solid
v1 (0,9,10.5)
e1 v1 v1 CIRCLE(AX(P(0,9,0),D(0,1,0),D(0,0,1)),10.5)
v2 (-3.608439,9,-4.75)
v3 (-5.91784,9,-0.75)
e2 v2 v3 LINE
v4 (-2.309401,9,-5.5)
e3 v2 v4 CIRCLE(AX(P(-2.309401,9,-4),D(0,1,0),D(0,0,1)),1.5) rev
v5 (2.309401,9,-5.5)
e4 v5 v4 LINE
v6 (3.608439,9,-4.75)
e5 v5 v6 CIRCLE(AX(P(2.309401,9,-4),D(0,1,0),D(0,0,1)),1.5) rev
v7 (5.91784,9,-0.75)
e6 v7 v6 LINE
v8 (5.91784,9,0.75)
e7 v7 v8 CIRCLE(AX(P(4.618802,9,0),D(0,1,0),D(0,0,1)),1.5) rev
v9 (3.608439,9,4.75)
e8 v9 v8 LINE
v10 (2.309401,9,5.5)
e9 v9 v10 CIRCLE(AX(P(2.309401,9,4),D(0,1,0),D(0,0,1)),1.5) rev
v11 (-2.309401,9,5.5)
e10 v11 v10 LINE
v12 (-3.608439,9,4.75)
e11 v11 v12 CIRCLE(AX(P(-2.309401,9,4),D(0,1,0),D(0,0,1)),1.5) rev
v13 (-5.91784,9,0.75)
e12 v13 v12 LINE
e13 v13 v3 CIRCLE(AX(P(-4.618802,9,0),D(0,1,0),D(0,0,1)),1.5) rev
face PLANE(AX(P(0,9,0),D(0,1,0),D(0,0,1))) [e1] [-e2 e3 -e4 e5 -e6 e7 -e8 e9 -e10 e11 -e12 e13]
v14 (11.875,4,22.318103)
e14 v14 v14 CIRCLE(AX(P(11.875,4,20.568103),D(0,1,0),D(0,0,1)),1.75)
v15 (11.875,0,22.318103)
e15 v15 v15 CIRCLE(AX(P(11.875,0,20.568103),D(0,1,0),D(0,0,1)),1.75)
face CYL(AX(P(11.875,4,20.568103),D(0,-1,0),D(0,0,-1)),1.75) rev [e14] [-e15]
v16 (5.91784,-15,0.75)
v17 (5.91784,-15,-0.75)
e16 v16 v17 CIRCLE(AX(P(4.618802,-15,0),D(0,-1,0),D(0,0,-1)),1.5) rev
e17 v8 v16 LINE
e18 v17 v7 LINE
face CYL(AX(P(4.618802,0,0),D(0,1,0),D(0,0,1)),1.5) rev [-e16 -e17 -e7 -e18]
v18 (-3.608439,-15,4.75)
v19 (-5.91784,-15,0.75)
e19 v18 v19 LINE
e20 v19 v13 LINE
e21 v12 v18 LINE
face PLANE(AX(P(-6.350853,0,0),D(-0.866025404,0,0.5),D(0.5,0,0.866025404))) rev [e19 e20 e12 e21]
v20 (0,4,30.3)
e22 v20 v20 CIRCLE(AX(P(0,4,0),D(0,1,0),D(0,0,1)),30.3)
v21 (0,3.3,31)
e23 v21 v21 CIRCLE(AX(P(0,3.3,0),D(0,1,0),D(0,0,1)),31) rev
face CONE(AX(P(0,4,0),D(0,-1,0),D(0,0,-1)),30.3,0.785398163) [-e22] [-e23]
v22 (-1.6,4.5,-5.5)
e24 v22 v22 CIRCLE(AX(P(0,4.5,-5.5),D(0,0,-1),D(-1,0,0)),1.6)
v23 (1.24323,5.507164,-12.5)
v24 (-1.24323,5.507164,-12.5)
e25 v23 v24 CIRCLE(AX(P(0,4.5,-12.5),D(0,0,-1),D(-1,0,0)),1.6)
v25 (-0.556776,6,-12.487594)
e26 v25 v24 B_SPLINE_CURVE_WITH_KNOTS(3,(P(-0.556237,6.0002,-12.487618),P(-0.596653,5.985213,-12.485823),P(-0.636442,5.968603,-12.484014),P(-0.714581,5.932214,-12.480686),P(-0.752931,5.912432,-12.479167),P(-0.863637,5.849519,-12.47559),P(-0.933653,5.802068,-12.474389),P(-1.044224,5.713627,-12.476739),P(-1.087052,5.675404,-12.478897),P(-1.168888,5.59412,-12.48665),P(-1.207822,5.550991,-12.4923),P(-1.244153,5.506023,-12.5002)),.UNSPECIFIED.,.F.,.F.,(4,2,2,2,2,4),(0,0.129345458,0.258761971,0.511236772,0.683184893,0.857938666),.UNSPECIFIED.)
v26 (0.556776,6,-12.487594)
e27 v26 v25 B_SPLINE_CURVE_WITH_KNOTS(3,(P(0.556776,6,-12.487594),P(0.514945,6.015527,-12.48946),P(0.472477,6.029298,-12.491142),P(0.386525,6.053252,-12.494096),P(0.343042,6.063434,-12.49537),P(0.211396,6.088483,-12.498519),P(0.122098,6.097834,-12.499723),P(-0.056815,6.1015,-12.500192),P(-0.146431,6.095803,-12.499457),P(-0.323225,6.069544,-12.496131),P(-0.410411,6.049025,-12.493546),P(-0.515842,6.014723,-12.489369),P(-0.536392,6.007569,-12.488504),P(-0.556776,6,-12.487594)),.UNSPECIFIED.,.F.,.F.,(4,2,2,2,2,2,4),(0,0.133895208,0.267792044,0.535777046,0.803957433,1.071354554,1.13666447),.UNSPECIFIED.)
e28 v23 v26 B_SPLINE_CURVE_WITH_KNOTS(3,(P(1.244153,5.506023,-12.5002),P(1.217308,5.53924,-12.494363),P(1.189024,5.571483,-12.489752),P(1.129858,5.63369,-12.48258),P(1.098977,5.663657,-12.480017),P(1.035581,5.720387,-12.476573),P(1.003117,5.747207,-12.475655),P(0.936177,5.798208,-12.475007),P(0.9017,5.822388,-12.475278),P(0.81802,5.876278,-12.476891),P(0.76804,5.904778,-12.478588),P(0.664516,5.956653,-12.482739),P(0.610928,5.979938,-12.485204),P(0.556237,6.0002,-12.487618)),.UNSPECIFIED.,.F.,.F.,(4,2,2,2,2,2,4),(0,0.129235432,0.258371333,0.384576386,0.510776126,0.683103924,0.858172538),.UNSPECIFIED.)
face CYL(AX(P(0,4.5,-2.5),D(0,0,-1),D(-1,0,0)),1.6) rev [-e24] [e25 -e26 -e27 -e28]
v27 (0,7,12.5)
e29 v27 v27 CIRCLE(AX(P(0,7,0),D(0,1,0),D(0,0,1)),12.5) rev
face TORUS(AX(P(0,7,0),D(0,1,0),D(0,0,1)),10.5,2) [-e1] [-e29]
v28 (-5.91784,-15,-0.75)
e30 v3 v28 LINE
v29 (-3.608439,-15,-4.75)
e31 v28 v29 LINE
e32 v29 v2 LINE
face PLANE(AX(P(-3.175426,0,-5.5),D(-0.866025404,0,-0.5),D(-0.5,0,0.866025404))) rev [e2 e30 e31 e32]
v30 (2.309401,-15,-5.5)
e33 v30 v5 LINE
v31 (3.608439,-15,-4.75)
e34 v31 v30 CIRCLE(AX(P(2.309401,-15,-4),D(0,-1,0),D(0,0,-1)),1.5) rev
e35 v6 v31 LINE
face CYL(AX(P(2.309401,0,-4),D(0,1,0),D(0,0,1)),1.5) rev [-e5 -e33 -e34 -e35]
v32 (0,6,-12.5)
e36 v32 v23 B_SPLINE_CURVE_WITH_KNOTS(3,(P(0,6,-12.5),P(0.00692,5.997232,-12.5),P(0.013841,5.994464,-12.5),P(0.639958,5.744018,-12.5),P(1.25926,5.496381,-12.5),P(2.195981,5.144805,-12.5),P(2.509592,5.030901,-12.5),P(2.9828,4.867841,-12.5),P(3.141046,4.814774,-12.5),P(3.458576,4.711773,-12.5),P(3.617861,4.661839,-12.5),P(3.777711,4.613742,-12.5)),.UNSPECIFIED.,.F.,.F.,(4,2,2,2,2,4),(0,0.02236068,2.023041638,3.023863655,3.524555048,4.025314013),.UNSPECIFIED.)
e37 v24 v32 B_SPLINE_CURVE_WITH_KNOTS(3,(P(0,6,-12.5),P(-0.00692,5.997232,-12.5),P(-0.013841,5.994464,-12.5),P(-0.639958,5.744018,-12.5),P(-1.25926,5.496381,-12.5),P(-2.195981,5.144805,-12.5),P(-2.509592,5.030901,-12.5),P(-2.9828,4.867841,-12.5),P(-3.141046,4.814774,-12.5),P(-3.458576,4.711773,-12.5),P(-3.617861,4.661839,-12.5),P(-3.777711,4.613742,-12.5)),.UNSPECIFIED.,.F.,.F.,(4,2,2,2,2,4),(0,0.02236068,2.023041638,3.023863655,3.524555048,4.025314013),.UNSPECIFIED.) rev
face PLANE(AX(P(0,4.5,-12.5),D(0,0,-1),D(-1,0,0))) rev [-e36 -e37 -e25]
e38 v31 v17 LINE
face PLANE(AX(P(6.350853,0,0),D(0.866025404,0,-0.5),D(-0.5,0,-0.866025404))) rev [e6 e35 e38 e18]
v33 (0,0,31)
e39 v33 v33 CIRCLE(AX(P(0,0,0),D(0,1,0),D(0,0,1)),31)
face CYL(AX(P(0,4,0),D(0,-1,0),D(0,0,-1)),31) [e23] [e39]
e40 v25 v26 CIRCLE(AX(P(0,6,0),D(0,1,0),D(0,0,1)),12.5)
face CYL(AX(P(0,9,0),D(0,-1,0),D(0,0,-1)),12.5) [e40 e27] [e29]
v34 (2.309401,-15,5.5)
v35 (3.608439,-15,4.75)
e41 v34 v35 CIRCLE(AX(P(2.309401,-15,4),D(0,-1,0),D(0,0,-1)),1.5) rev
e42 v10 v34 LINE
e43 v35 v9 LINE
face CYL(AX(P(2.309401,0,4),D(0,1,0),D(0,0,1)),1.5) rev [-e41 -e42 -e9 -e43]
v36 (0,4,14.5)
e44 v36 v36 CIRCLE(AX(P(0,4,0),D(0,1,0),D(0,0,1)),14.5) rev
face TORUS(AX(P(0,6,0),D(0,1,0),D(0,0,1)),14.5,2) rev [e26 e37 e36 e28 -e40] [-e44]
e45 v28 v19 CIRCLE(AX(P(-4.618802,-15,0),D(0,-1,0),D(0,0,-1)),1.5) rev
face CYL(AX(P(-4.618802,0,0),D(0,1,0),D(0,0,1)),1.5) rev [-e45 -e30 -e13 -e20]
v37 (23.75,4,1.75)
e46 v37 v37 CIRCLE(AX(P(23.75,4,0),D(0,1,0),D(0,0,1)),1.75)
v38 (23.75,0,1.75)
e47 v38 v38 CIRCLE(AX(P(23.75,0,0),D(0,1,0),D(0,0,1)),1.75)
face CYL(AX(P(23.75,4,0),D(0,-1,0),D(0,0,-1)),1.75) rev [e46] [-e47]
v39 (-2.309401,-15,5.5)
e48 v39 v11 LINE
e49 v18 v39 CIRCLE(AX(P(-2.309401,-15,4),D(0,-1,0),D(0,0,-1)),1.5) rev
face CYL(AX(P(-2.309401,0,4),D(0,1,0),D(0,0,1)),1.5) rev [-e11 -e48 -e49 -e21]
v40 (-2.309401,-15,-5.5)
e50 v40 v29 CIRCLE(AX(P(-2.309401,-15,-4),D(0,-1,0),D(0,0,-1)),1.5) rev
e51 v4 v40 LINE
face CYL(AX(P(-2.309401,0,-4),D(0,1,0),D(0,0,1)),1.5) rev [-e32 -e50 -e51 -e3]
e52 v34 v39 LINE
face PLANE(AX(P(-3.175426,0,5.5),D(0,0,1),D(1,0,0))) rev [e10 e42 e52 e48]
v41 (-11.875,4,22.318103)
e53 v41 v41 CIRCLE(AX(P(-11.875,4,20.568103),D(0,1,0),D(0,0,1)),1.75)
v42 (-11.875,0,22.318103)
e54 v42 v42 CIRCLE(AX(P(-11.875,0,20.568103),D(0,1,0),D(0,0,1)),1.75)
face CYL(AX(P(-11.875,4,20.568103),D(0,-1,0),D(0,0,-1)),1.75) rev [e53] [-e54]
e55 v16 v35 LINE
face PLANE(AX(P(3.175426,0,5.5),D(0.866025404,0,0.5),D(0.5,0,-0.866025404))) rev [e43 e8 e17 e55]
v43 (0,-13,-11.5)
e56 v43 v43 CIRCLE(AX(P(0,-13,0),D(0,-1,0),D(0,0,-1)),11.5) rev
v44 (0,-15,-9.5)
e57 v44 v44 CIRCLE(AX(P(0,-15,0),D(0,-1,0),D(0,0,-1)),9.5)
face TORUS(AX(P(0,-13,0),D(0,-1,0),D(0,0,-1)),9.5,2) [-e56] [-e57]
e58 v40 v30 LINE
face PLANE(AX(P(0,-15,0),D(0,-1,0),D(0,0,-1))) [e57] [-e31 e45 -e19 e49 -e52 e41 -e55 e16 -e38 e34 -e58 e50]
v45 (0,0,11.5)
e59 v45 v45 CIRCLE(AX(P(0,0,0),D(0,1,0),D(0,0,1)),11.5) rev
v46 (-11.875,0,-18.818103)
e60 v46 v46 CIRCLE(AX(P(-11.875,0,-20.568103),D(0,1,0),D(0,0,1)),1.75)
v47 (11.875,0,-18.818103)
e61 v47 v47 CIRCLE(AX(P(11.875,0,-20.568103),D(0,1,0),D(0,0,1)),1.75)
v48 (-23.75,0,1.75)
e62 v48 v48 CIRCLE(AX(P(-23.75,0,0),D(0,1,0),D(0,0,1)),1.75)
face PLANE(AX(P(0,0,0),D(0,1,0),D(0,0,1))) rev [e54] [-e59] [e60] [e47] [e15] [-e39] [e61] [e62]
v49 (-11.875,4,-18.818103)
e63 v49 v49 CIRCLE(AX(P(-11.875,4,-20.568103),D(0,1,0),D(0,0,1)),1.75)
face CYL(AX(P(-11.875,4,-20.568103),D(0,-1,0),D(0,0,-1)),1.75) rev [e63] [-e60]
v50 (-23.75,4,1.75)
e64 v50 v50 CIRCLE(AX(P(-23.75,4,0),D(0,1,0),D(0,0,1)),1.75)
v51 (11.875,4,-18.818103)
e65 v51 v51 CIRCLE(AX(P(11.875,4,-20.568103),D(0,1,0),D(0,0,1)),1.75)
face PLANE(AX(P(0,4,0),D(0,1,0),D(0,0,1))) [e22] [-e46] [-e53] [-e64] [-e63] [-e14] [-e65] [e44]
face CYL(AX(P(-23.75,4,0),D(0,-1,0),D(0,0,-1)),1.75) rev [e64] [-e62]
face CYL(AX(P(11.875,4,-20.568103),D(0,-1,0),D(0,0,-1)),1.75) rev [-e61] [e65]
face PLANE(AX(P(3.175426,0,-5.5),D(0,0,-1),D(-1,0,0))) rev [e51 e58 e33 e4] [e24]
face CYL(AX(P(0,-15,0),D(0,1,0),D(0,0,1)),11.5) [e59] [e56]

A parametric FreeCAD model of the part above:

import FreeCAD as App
import Part
import Sketcher
Q = App.Units.Quantity


def edges_at(feature, points):
    """Names of the edges that pass closest to the given points."""
    edges = feature.Shape.Edges
    near = lambda p: min(range(len(edges)), key=lambda i: edges[i].distToShape(Part.Vertex(*p))[0])
    return sorted({f"Edge{near(p) + 1}" for p in points})

doc = App.newDocument("Part")
params = doc.addObject("Spreadsheet::Sheet", "Params")
for row, (alias, value) in enumerate([
    ("sketch1_diameter", "62 mm"),
    ("sketch1_diameter2", "3.5 mm"),
    ("pad1_length", "4 mm"),
    ("sketch2_diameter", "25 mm"),
    ("pad2_length", "5 mm"),
    ("fillet_radius", "2 mm"),
    ("fillet2_radius", "2 mm"),
    ("sketch4_diameter", "3.2 mm"),
    ("pocket2_length", "10 mm"),
    ("chamfer_size", "0.7 mm"),
    ("sketch5_diameter", "23 mm"),
    ("pad3_length", "15 mm"),
    ("fillet3_radius", "2 mm"),
    ("fillet4_radius", "1.5 mm"),
], start=1):
    params.set(f"A{row}", alias)
    params.set(f"B{row}", "=" + value)
    params.setAlias(f"B{row}", alias)

body = doc.addObject("PartDesign::Body", "Body")

# Sketch on XZ plane
sketch1 = body.newObject("Sketcher::SketchObject", "Sketch")
sketch1.AttachmentSupport = (doc.getObject("XZ_Plane"), [""])
sketch1.MapMode = "FlatFace"
sketch1.addGeometry([
    Part.Circle(App.Vector(0, 0, 0), App.Vector(0, 0, 1), 31),  # 0
    Part.Circle(App.Vector(-11.875, -20.568103, 0), App.Vector(0, 0, 1), 1.75),  # 1
    Part.Circle(App.Vector(-23.75, 0, 0), App.Vector(0, 0, 1), 1.75),  # 2
    Part.Circle(App.Vector(-11.875, 20.568103, 0), App.Vector(0, 0, 1), 1.75),  # 3
    Part.Circle(App.Vector(11.875, -20.568103, 0), App.Vector(0, 0, 1), 1.75),  # 4
    Part.Circle(App.Vector(23.75, 0, 0), App.Vector(0, 0, 1), 1.75),  # 5
    Part.Circle(App.Vector(11.875, 20.568103, 0), App.Vector(0, 0, 1), 1.75),  # 6
], False)
sketch1.addConstraint([
    Sketcher.Constraint("Coincident", 0, 3, -1, 1),
    Sketcher.Constraint("Equal", 1, 2),
    Sketcher.Constraint("Equal", 2, 3),
    Sketcher.Constraint("Equal", 3, 4),
    Sketcher.Constraint("Equal", 4, 5),
    Sketcher.Constraint("Equal", 5, 6),
    Sketcher.Constraint("Symmetric", 3, 3, 4, 3, -1, 1),
    Sketcher.Constraint("Symmetric", 2, 3, 5, 3, -1, 1),
    Sketcher.Constraint("Symmetric", 1, 3, 6, 3, -1, 1),
    Sketcher.Constraint("Symmetric", 1, 3, 4, 3, -2),
    Sketcher.Constraint("PointOnObject", 2, 3, -1),
    Sketcher.Constraint("Diameter", 0, Q("62 mm")),
    Sketcher.Constraint("Diameter", 1, Q("3.5 mm")),
    Sketcher.Constraint("DistanceX", 2, 3, 5, 3, Q("47.5 mm")),
    Sketcher.Constraint("DistanceX", 1, 3, 4, 3, Q("23.75 mm")),
    Sketcher.Constraint("DistanceY", 1, 3, -1, 1, Q("20.568103 mm")),
])
sketch1.setExpression("Constraints[11]", "Params.sketch1_diameter")
sketch1.setExpression("Constraints[12]", "Params.sketch1_diameter2")
pad1 = body.newObject("PartDesign::Pad", "Pad")
pad1.Profile = sketch1
pad1.setExpression("Length", "Params.pad1_length")
pad1.Reversed = True

# Sketch on XZ plane
sketch2 = body.newObject("Sketcher::SketchObject", "Sketch001")
sketch2.AttachmentSupport = (doc.getObject("XZ_Plane"), [""])
sketch2.MapMode = "FlatFace"
sketch2.AttachmentOffset = App.Placement(App.Vector(0, 0, -4), App.Rotation())
sketch2.addGeometry(Part.Circle(App.Vector(0, 0, 0), App.Vector(0, 0, 1), 12.5), False)
sketch2.addConstraint([
    Sketcher.Constraint("Coincident", 0, 3, -1, 1),
    Sketcher.Constraint("Diameter", 0, Q("25 mm")),
])
sketch2.setExpression("Constraints[1]", "Params.sketch2_diameter")
pad2 = body.newObject("PartDesign::Pad", "Pad001")
pad2.Profile = sketch2
pad2.setExpression("Length", "Params.pad2_length")
pad2.Reversed = True

# Sketch on XZ plane
sketch3 = body.newObject("Sketcher::SketchObject", "Sketch002")
sketch3.AttachmentSupport = (doc.getObject("XZ_Plane"), [""])
sketch3.MapMode = "FlatFace"
sketch3.AttachmentOffset = App.Placement(App.Vector(0, 0, -9), App.Rotation())
sketch3.addGeometry([
    Part.LineSegment(App.Vector(3.175426, -5.5, 0), App.Vector(-3.175426, -5.5, 0)),  # 0
    Part.LineSegment(App.Vector(-3.175426, -5.5, 0), App.Vector(-6.350853, 0, 0)),  # 1
    Part.LineSegment(App.Vector(-6.350853, 0, 0), App.Vector(-3.175426, 5.5, 0)),  # 2
    Part.LineSegment(App.Vector(-3.175426, 5.5, 0), App.Vector(3.175426, 5.5, 0)),  # 3
    Part.LineSegment(App.Vector(3.175426, 5.5, 0), App.Vector(6.350853, 0, 0)),  # 4
    Part.LineSegment(App.Vector(6.350853, 0, 0), App.Vector(3.175426, -5.5, 0)),  # 5
], False)
sketch3.addConstraint([
    Sketcher.Constraint("Coincident", 0, 2, 1, 1),
    Sketcher.Constraint("Coincident", 1, 2, 2, 1),
    Sketcher.Constraint("Coincident", 2, 2, 3, 1),
    Sketcher.Constraint("Coincident", 3, 2, 4, 1),
    Sketcher.Constraint("Coincident", 4, 2, 5, 1),
    Sketcher.Constraint("Coincident", 5, 2, 0, 1),
    Sketcher.Constraint("Horizontal", 0),
    Sketcher.Constraint("Horizontal", 3),
    Sketcher.Constraint("Symmetric", 0, 2, 3, 2, -1, 1),
    Sketcher.Constraint("Symmetric", 1, 2, 4, 2, -1, 1),
    Sketcher.Constraint("PointOnObject", 1, 2, -1),
    Sketcher.Constraint("Parallel", 2, 5),
    Sketcher.Constraint("Vertical", 0, 2, 2, 2),
    Sketcher.Constraint("Angle", 1, Q("120 deg")),
    Sketcher.Constraint("DistanceY", 0, 2, 2, 2, Q("11 mm")),
    Sketcher.Constraint("DistanceX", 0, 2, 0, 1, Q("6.350853 mm")),
])
pocket1 = body.newObject("PartDesign::Pocket", "Pocket")
pocket1.Profile = sketch3
pocket1.Type = "ThroughAll"
pocket1.Reversed = True
doc.recompute()

fillet = body.newObject("PartDesign::Fillet", "Fillet")
fillet.Base = (pocket1, edges_at(pocket1, [
    (3.175, 4.5, -5.5),
    (6.351, 4.5, 0),
    (3.175, 4.5, 5.5),
    (-3.175, 4.5, 5.5),
    (-6.351, 4.5, 0),
    (-3.175, 4.5, -5.5),
]))
fillet.setExpression("Radius", "Params.fillet_radius")
doc.recompute()

fillet2 = body.newObject("PartDesign::Fillet", "Fillet001")
fillet2.Base = (fillet, edges_at(fillet, [(0, 4, -12.5), (0, 9, -12.5)]))
fillet2.setExpression("Radius", "Params.fillet2_radius")

# Sketch on XY plane
sketch4 = body.newObject("Sketcher::SketchObject", "Sketch003")
sketch4.AttachmentSupport = (doc.getObject("XY_Plane"), [""])
sketch4.MapMode = "FlatFace"
sketch4.AttachmentOffset = App.Placement(App.Vector(0, 0, -12.5), App.Rotation())
sketch4.addGeometry(Part.Circle(App.Vector(0, 4.5, 0), App.Vector(0, 0, 1), 1.6), False)
sketch4.addConstraint([
    Sketcher.Constraint("PointOnObject", 0, 3, -2),
    Sketcher.Constraint("Diameter", 0, Q("3.2 mm")),
    Sketcher.Constraint("DistanceY", -1, 1, 0, 3, Q("4.5 mm")),
])
sketch4.setExpression("Constraints[1]", "Params.sketch4_diameter")
pocket2 = body.newObject("PartDesign::Pocket", "Pocket001")
pocket2.Profile = sketch4
pocket2.setExpression("Length", "Params.pocket2_length")
pocket2.Reversed = True
doc.recompute()

chamfer = body.newObject("PartDesign::Chamfer", "Chamfer")
chamfer.Base = (pocket2, edges_at(pocket2, [(0, 4, -31)]))
chamfer.setExpression("Size", "Params.chamfer_size")

# Sketch on XZ plane
sketch5 = body.newObject("Sketcher::SketchObject", "Sketch004")
sketch5.AttachmentSupport = (doc.getObject("XZ_Plane"), [""])
sketch5.MapMode = "FlatFace"
sketch5.addGeometry(Part.Circle(App.Vector(0, 0, 0), App.Vector(0, 0, 1), 11.5), False)
sketch5.addConstraint([
    Sketcher.Constraint("Coincident", 0, 3, -1, 1),
    Sketcher.Constraint("Diameter", 0, Q("23 mm")),
])
sketch5.setExpression("Constraints[1]", "Params.sketch5_diameter")
pad3 = body.newObject("PartDesign::Pad", "Pad002")
pad3.Profile = sketch5
pad3.setExpression("Length", "Params.pad3_length")
doc.recompute()

fillet3 = body.newObject("PartDesign::Fillet", "Fillet002")
fillet3.Base = (pad3, edges_at(pad3, [(0, -15, -11.5)]))
fillet3.setExpression("Radius", "Params.fillet3_radius")

# Sketch on XZ plane
sketch6 = body.newObject("Sketcher::SketchObject", "Sketch005")
sketch6.AttachmentSupport = (doc.getObject("XZ_Plane"), [""])
sketch6.MapMode = "FlatFace"
sketch6.AttachmentOffset = App.Placement(App.Vector(0, 0, 15), App.Rotation())
sketch6.addGeometry([
    Part.LineSegment(App.Vector(3.175426, 5.5, 0), App.Vector(-3.175426, 5.5, 0)),  # 0
    Part.LineSegment(App.Vector(-3.175426, 5.5, 0), App.Vector(-6.350853, 0, 0)),  # 1
    Part.LineSegment(App.Vector(-6.350853, 0, 0), App.Vector(-3.175426, -5.5, 0)),  # 2
    Part.LineSegment(App.Vector(-3.175426, -5.5, 0), App.Vector(3.175426, -5.5, 0)),  # 3
    Part.LineSegment(App.Vector(3.175426, -5.5, 0), App.Vector(6.350853, 0, 0)),  # 4
    Part.LineSegment(App.Vector(6.350853, 0, 0), App.Vector(3.175426, 5.5, 0)),  # 5
], False)
sketch6.addConstraint([
    Sketcher.Constraint("Coincident", 0, 2, 1, 1),
    Sketcher.Constraint("Coincident", 1, 2, 2, 1),
    Sketcher.Constraint("Coincident", 2, 2, 3, 1),
    Sketcher.Constraint("Coincident", 3, 2, 4, 1),
    Sketcher.Constraint("Coincident", 4, 2, 5, 1),
    Sketcher.Constraint("Coincident", 5, 2, 0, 1),
    Sketcher.Constraint("Horizontal", 0),
    Sketcher.Constraint("Horizontal", 3),
    Sketcher.Constraint("Symmetric", 0, 2, 3, 2, -1, 1),
    Sketcher.Constraint("Symmetric", 1, 2, 4, 2, -1, 1),
    Sketcher.Constraint("PointOnObject", 1, 2, -1),
    Sketcher.Constraint("Parallel", 2, 5),
    Sketcher.Constraint("Vertical", 0, 2, 2, 2),
    Sketcher.Constraint("Angle", 1, Q("-120 deg")),
    Sketcher.Constraint("DistanceY", 2, 2, 0, 2, Q("11 mm")),
    Sketcher.Constraint("DistanceX", 0, 2, 0, 1, Q("6.350853 mm")),
])
pocket3 = body.newObject("PartDesign::Pocket", "Pocket002")
pocket3.Profile = sketch6
pocket3.Type = "ThroughAll"
doc.recompute()

fillet4 = body.newObject("PartDesign::Fillet", "Fillet003")
fillet4.Base = (pocket3, edges_at(pocket3, [
    (3.175, -3, 5.5),
    (3.175, -3, -5.5),
    (6.351, -3, 0),
    (-3.175, -3, -5.5),
    (-6.351, -3, 0),
    (-3.175, -3, 5.5),
]))
fillet4.setExpression("Radius", "Params.fillet4_radius")

doc.recompute()
